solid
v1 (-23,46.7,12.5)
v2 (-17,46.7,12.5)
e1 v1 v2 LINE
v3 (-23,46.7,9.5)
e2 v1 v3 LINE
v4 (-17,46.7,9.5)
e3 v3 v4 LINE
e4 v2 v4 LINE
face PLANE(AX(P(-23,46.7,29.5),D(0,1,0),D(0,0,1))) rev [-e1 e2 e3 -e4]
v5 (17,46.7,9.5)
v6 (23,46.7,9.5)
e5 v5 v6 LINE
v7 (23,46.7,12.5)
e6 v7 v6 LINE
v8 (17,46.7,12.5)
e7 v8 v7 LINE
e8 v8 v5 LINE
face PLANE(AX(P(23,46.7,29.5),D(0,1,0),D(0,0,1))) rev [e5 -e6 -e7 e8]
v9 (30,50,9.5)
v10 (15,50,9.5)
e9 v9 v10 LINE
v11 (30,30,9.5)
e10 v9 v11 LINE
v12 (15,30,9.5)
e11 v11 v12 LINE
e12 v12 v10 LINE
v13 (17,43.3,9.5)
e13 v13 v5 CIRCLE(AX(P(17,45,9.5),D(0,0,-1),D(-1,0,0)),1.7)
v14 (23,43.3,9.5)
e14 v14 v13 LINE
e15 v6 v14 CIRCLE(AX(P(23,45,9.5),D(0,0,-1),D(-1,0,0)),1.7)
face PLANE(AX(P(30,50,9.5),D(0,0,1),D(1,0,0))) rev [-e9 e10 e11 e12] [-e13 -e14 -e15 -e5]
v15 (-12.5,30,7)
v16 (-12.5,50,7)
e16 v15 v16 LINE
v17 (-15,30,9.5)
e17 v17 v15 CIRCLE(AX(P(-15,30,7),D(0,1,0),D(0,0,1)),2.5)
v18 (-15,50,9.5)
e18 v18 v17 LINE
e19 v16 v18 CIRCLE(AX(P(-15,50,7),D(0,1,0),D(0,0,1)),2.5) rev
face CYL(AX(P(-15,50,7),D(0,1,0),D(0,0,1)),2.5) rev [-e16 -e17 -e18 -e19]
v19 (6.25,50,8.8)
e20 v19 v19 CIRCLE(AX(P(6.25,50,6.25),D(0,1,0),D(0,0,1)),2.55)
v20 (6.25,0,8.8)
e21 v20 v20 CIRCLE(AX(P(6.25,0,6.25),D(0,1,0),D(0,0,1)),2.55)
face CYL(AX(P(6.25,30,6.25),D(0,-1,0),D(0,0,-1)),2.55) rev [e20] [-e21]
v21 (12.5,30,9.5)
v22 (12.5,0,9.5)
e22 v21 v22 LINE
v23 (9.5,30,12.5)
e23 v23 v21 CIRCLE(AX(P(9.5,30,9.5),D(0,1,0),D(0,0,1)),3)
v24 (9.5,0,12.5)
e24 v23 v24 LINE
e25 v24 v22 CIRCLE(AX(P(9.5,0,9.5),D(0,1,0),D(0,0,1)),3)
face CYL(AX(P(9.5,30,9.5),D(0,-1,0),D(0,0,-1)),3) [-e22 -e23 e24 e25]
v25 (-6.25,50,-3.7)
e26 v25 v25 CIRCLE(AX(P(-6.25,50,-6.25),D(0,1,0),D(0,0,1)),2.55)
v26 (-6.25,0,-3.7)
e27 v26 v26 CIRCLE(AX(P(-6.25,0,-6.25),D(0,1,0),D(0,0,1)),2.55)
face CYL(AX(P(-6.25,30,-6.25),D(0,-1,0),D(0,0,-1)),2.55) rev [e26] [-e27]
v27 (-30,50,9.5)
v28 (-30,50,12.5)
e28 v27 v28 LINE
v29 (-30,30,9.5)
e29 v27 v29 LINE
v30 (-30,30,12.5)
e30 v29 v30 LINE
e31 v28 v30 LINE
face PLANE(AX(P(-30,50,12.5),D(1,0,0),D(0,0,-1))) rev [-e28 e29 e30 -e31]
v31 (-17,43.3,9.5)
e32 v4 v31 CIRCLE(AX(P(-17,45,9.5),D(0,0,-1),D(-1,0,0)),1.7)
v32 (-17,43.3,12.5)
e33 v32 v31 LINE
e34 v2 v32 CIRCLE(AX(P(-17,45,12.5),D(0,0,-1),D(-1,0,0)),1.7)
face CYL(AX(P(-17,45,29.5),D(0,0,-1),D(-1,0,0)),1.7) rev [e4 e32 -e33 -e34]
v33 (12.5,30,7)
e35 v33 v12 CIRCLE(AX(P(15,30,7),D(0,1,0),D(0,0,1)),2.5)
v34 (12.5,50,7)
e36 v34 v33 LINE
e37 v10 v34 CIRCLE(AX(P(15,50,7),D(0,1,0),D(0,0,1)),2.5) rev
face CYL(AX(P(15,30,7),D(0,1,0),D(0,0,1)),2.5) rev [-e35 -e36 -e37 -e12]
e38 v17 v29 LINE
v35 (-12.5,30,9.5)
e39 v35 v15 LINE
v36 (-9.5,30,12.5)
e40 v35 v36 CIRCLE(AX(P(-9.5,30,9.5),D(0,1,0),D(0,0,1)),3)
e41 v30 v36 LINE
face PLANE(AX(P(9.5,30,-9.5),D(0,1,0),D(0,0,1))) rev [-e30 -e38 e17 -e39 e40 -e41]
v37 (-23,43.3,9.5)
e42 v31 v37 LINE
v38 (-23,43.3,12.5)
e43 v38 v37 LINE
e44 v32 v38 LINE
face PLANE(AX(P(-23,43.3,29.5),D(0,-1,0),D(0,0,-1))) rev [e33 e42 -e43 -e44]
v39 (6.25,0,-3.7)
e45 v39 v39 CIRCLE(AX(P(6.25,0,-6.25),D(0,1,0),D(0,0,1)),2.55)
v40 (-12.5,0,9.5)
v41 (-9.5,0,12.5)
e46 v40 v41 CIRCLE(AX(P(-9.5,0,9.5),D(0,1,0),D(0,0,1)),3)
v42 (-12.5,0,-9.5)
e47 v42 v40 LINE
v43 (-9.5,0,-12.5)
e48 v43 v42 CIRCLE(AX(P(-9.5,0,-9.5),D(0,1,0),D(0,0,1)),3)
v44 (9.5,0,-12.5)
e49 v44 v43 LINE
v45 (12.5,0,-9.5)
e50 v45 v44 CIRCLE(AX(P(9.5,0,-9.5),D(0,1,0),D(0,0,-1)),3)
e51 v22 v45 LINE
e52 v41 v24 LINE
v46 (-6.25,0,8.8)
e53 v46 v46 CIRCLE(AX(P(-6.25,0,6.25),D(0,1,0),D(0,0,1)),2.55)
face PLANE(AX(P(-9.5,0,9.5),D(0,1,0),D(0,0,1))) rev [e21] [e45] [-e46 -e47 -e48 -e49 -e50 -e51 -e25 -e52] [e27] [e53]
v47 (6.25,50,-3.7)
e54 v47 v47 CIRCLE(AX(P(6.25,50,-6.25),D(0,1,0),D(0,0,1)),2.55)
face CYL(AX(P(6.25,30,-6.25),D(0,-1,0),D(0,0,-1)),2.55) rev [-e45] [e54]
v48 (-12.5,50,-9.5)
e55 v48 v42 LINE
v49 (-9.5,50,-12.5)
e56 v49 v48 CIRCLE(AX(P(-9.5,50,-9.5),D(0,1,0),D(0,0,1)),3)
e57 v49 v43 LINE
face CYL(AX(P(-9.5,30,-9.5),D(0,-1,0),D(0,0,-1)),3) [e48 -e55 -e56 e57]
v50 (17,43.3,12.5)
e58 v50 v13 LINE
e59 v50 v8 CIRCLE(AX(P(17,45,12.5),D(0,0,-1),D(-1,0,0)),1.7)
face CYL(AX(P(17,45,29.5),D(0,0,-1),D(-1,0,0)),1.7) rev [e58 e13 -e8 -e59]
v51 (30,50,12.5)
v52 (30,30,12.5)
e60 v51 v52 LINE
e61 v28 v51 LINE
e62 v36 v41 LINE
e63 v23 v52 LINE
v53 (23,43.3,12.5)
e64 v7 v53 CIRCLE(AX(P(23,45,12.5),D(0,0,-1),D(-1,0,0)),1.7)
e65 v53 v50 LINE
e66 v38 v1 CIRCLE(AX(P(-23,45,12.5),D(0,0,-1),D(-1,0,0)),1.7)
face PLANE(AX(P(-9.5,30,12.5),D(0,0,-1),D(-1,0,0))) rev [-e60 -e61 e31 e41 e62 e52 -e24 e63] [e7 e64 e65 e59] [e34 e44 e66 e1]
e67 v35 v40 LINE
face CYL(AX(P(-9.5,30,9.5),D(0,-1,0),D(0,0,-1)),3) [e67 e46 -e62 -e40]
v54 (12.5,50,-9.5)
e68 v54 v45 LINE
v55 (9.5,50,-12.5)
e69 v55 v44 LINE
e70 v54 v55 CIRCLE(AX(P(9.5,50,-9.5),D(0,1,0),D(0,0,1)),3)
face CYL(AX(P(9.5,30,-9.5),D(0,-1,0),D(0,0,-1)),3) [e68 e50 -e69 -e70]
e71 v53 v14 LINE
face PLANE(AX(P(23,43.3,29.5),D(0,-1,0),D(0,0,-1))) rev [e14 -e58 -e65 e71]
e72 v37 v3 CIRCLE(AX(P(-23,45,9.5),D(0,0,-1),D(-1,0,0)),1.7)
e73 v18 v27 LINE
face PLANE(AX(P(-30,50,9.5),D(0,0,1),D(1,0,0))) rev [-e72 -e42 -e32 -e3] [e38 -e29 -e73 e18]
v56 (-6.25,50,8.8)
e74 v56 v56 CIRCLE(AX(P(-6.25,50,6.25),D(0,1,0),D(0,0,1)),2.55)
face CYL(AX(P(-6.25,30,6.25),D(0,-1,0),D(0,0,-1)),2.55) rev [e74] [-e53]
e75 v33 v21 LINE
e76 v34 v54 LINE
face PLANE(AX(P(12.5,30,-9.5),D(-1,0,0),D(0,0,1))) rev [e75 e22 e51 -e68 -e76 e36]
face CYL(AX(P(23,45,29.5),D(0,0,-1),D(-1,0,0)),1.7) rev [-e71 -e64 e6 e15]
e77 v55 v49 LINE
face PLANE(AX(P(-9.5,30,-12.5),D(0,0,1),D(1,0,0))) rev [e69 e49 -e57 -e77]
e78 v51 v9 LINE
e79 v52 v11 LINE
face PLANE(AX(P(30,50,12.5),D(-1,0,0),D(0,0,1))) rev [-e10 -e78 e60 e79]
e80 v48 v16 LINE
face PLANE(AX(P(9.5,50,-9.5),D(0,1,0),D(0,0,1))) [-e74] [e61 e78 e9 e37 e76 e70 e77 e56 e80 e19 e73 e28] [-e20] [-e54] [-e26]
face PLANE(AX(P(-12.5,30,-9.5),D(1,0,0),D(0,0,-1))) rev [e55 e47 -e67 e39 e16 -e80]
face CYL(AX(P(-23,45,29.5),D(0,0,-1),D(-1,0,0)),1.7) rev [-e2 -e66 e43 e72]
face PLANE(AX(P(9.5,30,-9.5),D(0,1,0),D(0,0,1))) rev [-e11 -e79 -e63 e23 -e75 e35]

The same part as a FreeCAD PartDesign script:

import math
import FreeCAD as App
import Part
import Sketcher
Q = App.Units.Quantity


def edges_at(feature, points):
    """Names of the edges that pass closest to the given points."""
    edges = feature.Shape.Edges
    near = lambda p: min(range(len(edges)), key=lambda i: edges[i].distToShape(Part.Vertex(*p))[0])
    return sorted({f"Edge{near(p) + 1}" for p in points})

doc = App.newDocument("Part")
body = doc.addObject("PartDesign::Body", "Body")

# Sketch on XZ plane
sketch1 = body.newObject("Sketcher::SketchObject", "Sketch")
sketch1.AttachmentSupport = (doc.getObject("XZ_Plane"), [""])
sketch1.MapMode = "FlatFace"
sketch1.addGeometry([
    Part.LineSegment(App.Vector(9.5, -12.5, 0), App.Vector(-9.5, -12.5, 0)),  # 0
    Part.ArcOfCircle(Part.Circle(App.Vector(-9.5, -9.5, 0), App.Vector(0, 0, 1), 3), math.radians(180), math.radians(270)),  # 1
    Part.LineSegment(App.Vector(-12.5, -9.5, 0), App.Vector(-12.5, 9.5, 0)),  # 2
    Part.ArcOfCircle(Part.Circle(App.Vector(-9.5, 9.5, 0), App.Vector(0, 0, 1), 3), math.radians(90), math.radians(180)),  # 3
    Part.LineSegment(App.Vector(-9.5, 12.5, 0), App.Vector(9.5, 12.5, 0)),  # 4
    Part.ArcOfCircle(Part.Circle(App.Vector(9.5, 9.5, 0), App.Vector(0, 0, 1), 3), math.radians(0), math.radians(90)),  # 5
    Part.LineSegment(App.Vector(12.5, 9.5, 0), App.Vector(12.5, -9.5, 0)),  # 6
    Part.ArcOfCircle(Part.Circle(App.Vector(9.5, -9.5, 0), App.Vector(0, 0, 1), 3), math.radians(-90), math.radians(0)),  # 7
    Part.Circle(App.Vector(6.2, 6.2, 0), App.Vector(0, 0, 1), 2.5),  # 8
    Part.Circle(App.Vector(-6.2, 6.2, 0), App.Vector(0, 0, 1), 2.5),  # 9
    Part.Circle(App.Vector(6.2, -6.2, 0), App.Vector(0, 0, 1), 2.5),  # 10
    Part.Circle(App.Vector(-6.2, -6.2, 0), App.Vector(0, 0, 1), 2.5),  # 11
], False)
sketch1.addConstraint([
    Sketcher.Constraint("Tangent", 0, 2, 1, 2),
    Sketcher.Constraint("Tangent", 1, 1, 2, 1),
    Sketcher.Constraint("Tangent", 2, 2, 3, 2),
    Sketcher.Constraint("Tangent", 3, 1, 4, 1),
    Sketcher.Constraint("Tangent", 4, 2, 5, 2),
    Sketcher.Constraint("Tangent", 5, 1, 6, 1),
    Sketcher.Constraint("Tangent", 6, 2, 7, 2),
    Sketcher.Constraint("Tangent", 7, 1, 0, 1),
    Sketcher.Constraint("Horizontal", 0),
    Sketcher.Constraint("Vertical", 2),
    Sketcher.Constraint("Horizontal", 4),
    Sketcher.Constraint("Vertical", 6),
    Sketcher.Constraint("Equal", 1, 3),
    Sketcher.Constraint("Equal", 3, 5),
    Sketcher.Constraint("Equal", 5, 7),
    Sketcher.Constraint("Equal", 8, 9),
    Sketcher.Constraint("Equal", 9, 10),
    Sketcher.Constraint("Equal", 10, 11),
    Sketcher.Constraint("Symmetric", 1, 3, 5, 3, -1, 1),
    Sketcher.Constraint("Symmetric", 9, 3, 10, 3, -1, 1),
    Sketcher.Constraint("Symmetric", 8, 3, 11, 3, -1, 1),
    Sketcher.Constraint("Symmetric", 8, 3, 9, 3, -2),
    Sketcher.Constraint("Equal", 4, 2),
    Sketcher.Constraint("Radius", 1, Q("3 mm")),
    Sketcher.Constraint("Diameter", 8, Q("5.1 mm")),
    Sketcher.Constraint("DistanceX", 0, 2, 0, 1, Q("19 mm")),
    Sketcher.Constraint("DistanceX", 9, 3, 8, 3, Q("12.5 mm")),
    Sketcher.Constraint("DistanceY", 10, 3, 8, 3, Q("12.5 mm")),
])
pad1 = body.newObject("PartDesign::Pad", "Pad")
pad1.Profile = sketch1
pad1.Length = 30
pad1.Reversed = True

# Sketch on XZ plane
sketch2 = body.newObject("Sketcher::SketchObject", "Sketch001")
sketch2.AttachmentSupport = (doc.getObject("XZ_Plane"), [""])
sketch2.MapMode = "FlatFace"
sketch2.AttachmentOffset = App.Placement(App.Vector(0, 0, -30), App.Rotation())
sketch2.addGeometry([
    Part.LineSegment(App.Vector(-30, 9.5, 0), App.Vector(-30, 12.5, 0)),  # 0
    Part.LineSegment(App.Vector(-30, 12.5, 0), App.Vector(30, 12.5, 0)),  # 1
    Part.LineSegment(App.Vector(30, 12.5, 0), App.Vector(30, 9.5, 0)),  # 2
    Part.LineSegment(App.Vector(30, 9.5, 0), App.Vector(12.5, 9.5, 0)),  # 3
    Part.LineSegment(App.Vector(12.5, 9.5, 0), App.Vector(12.5, -9.5, 0)),  # 4
    Part.ArcOfCircle(Part.Circle(App.Vector(9.5, -9.5, 0), App.Vector(0, 0, 1), 3), math.radians(-90), math.radians(0)),  # 5
    Part.LineSegment(App.Vector(9.5, -12.5, 0), App.Vector(-9.5, -12.5, 0)),  # 6
    Part.ArcOfCircle(Part.Circle(App.Vector(-9.5, -9.5, 0), App.Vector(0, 0, 1), 3), math.radians(180), math.radians(270)),  # 7
    Part.LineSegment(App.Vector(-12.5, -9.5, 0), App.Vector(-12.5, 9.5, 0)),  # 8
    Part.LineSegment(App.Vector(-12.5, 9.5, 0), App.Vector(-30, 9.5, 0)),  # 9
    Part.Circle(App.Vector(6.2, 6.2, 0), App.Vector(0, 0, 1), 2.5),  # 10
    Part.Circle(App.Vector(-6.2, 6.2, 0), App.Vector(0, 0, 1), 2.5),  # 11
    Part.Circle(App.Vector(6.2, -6.2, 0), App.Vector(0, 0, 1), 2.5),  # 12
    Part.Circle(App.Vector(-6.2, -6.2, 0), App.Vector(0, 0, 1), 2.5),  # 13
], False)
sketch2.addConstraint([
    Sketcher.Constraint("Coincident", 0, 2, 1, 1),
    Sketcher.Constraint("Coincident", 1, 2, 2, 1),
    Sketcher.Constraint("Coincident", 2, 2, 3, 1),
    Sketcher.Constraint("Coincident", 3, 2, 4, 1),
    Sketcher.Constraint("Tangent", 4, 2, 5, 2),
    Sketcher.Constraint("Tangent", 5, 1, 6, 1),
    Sketcher.Constraint("Tangent", 6, 2, 7, 2),
    Sketcher.Constraint("Tangent", 7, 1, 8, 1),
    Sketcher.Constraint("Coincident", 8, 2, 9, 1),
    Sketcher.Constraint("Coincident", 9, 2, 0, 1),
    Sketcher.Constraint("Vertical", 0),
    Sketcher.Constraint("Horizontal", 1),
    Sketcher.Constraint("Vertical", 2),
    Sketcher.Constraint("Horizontal", 3),
    Sketcher.Constraint("Vertical", 4),
    Sketcher.Constraint("Horizontal", 6),
    Sketcher.Constraint("Vertical", 8),
    Sketcher.Constraint("Horizontal", 9),
    Sketcher.Constraint("Equal", 5, 7),
    Sketcher.Constraint("Equal", 10, 11),
    Sketcher.Constraint("Equal", 11, 12),
    Sketcher.Constraint("Equal", 12, 13),
    Sketcher.Constraint("Symmetric", 11, 3, 12, 3, -1, 1),
    Sketcher.Constraint("Symmetric", 10, 3, 13, 3, -1, 1),
    Sketcher.Constraint("Symmetric", 3, 2, 7, 1, -1, 1),
    Sketcher.Constraint("Symmetric", 10, 3, 11, 3, -2),
    Sketcher.Constraint("Symmetric", 2, 2, 9, 2, -2),
    Sketcher.Constraint("Equal", 6, 4),
    Sketcher.Constraint("Radius", 5, Q("3 mm")),
    Sketcher.Constraint("Diameter", 10, Q("5.1 mm")),
    Sketcher.Constraint("DistanceX", 1, 1, 1, 2, Q("60 mm")),
    Sketcher.Constraint("DistanceX", 6, 2, 6, 1, Q("19 mm")),
    Sketcher.Constraint("DistanceY", 0, 1, 0, 2, Q("3 mm")),
    Sketcher.Constraint("DistanceX", 11, 3, 10, 3, Q("12.5 mm")),
    Sketcher.Constraint("DistanceY", 12, 3, 10, 3, Q("12.5 mm")),
])
pad2 = body.newObject("PartDesign::Pad", "Pad001")
pad2.Profile = sketch2
pad2.Length = 20
pad2.Reversed = True

# Sketch on XY plane
sketch3 = body.newObject("Sketcher::SketchObject", "Sketch002")
sketch3.AttachmentSupport = (doc.getObject("XY_Plane"), [""])
sketch3.MapMode = "FlatFace"
sketch3.AttachmentOffset = App.Placement(App.Vector(0, 0, 9.5), App.Rotation())
sketch3.addGeometry([
    Part.LineSegment(App.Vector(17, 46.7, 0), App.Vector(23, 46.7, 0)),  # 0
    Part.ArcOfCircle(Part.Circle(App.Vector(23, 45, 0), App.Vector(0, 0, 1), 1.7), math.radians(-90), math.radians(90)),  # 1
    Part.LineSegment(App.Vector(23, 43.3, 0), App.Vector(17, 43.3, 0)),  # 2
    Part.ArcOfCircle(Part.Circle(App.Vector(17, 45, 0), App.Vector(0, 0, 1), 1.7), math.radians(90), math.radians(270)),  # 3
    Part.LineSegment(App.Vector(-17, 43.3, 0), App.Vector(-23, 43.3, 0)),  # 4
    Part.ArcOfCircle(Part.Circle(App.Vector(-23, 45, 0), App.Vector(0, 0, 1), 1.7), math.radians(90), math.radians(270)),  # 5
    Part.LineSegment(App.Vector(-23, 46.7, 0), App.Vector(-17, 46.7, 0)),  # 6
    Part.ArcOfCircle(Part.Circle(App.Vector(-17, 45, 0), App.Vector(0, 0, 1), 1.7), math.radians(-90), math.radians(90)),  # 7
], False)
sketch3.addConstraint([
    Sketcher.Constraint("Tangent", 0, 2, 1, 2),
    Sketcher.Constraint("Tangent", 1, 1, 2, 1),
    Sketcher.Constraint("Tangent", 2, 2, 3, 2),
    Sketcher.Constraint("Tangent", 3, 1, 0, 1),
    Sketcher.Constraint("Tangent", 4, 2, 5, 2),
    Sketcher.Constraint("Tangent", 5, 1, 6, 1),
    Sketcher.Constraint("Tangent", 6, 2, 7, 2),
    Sketcher.Constraint("Tangent", 7, 1, 4, 1),
    Sketcher.Constraint("Horizontal", 0),
    Sketcher.Constraint("Horizontal", 2),
    Sketcher.Constraint("Horizontal", 4),
    Sketcher.Constraint("Horizontal", 6),
    Sketcher.Constraint("Equal", 3, 5),
    Sketcher.Constraint("Symmetric", 1, 3, 5, 3, -2),
    Sketcher.Constraint("Equal", 2, 4),
    Sketcher.Constraint("Radius", 1, Q("1.7 mm")),
    Sketcher.Constraint("DistanceX", 0, 1, 0, 2, Q("6 mm")),
    Sketcher.Constraint("DistanceX", -1, 1, 1, 3, Q("23 mm")),
    Sketcher.Constraint("DistanceY", -1, 1, 1, 3, Q("45 mm")),
])
pocket1 = body.newObject("PartDesign::Pocket", "Pocket")
pocket1.Profile = sketch3
pocket1.Length = 20
pocket1.Reversed = True
doc.recompute()

fillet = body.newObject("PartDesign::Fillet", "Fillet")
fillet.Base = (pocket1, edges_at(pocket1, [(12.5, 40, 9.5), (-12.5, 40, 9.5)]))
fillet.Radius = 2.5

doc.recompute()
